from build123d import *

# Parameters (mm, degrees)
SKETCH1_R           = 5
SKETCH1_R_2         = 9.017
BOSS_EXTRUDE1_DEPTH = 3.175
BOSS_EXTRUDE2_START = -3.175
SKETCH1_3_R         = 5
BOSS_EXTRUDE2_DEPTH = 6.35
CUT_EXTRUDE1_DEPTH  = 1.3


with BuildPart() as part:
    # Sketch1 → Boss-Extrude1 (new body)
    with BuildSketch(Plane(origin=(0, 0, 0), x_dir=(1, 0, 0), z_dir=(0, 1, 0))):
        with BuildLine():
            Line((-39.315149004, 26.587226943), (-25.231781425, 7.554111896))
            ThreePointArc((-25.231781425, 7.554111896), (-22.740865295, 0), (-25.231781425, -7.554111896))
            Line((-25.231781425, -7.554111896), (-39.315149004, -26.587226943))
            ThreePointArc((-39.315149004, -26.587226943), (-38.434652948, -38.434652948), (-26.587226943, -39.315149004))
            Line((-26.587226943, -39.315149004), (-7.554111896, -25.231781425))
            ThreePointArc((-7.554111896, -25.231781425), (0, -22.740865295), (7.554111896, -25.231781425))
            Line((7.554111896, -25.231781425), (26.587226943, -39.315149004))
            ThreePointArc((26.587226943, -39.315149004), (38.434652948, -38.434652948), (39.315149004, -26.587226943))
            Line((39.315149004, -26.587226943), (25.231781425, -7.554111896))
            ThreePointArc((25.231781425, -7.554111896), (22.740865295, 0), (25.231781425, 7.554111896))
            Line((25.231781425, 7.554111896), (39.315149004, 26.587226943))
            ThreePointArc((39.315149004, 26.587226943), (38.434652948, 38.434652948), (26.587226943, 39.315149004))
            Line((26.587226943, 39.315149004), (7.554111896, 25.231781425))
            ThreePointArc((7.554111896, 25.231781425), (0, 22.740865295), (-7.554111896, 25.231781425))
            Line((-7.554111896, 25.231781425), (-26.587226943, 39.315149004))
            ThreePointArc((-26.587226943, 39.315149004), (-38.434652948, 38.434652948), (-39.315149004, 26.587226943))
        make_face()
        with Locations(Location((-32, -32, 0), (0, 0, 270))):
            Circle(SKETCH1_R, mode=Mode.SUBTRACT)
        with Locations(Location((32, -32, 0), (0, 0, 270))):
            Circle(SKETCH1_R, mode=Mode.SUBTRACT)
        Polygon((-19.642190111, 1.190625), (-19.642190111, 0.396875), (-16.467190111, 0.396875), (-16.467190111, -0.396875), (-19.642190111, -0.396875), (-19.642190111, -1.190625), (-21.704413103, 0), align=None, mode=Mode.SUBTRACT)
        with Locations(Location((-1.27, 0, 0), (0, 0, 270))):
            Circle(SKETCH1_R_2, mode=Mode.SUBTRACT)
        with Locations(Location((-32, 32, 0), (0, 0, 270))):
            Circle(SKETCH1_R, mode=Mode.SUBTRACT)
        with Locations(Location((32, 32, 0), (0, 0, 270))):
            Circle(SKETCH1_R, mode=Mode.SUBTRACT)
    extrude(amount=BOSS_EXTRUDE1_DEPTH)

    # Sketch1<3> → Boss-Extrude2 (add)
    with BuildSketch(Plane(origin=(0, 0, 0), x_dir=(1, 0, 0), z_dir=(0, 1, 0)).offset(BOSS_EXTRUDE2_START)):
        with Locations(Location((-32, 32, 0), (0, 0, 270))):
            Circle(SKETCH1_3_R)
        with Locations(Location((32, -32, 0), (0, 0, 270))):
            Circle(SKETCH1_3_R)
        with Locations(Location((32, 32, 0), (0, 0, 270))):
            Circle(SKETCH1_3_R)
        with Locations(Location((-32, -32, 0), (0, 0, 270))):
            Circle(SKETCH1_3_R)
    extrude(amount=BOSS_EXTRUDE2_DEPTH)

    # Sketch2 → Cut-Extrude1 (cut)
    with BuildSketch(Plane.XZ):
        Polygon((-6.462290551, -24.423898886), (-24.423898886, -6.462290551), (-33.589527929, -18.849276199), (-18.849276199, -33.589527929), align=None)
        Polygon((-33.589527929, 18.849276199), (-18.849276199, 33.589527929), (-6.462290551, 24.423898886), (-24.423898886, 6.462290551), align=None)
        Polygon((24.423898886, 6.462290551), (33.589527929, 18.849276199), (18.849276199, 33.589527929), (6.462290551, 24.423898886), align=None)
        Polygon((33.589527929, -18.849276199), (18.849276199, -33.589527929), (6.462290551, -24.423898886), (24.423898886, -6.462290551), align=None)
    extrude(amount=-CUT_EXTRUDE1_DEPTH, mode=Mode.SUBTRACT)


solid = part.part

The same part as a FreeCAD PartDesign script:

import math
import FreeCAD as App
import Part
import Sketcher
Q = App.Units.Quantity

doc = App.newDocument("Part")
body = doc.addObject("PartDesign::Body", "Body")

# Sketch on XZ plane
sketch1 = body.newObject("Sketcher::SketchObject", "Sketch")
sketch1.AttachmentSupport = (doc.getObject("XZ_Plane"), [""])
sketch1.MapMode = "FlatFace"
sketch1.addGeometry([
    Part.LineSegment(App.Vector(-39.315149, -26.587227, 0), App.Vector(-25.231781, -7.554112, 0)),  # 0
    Part.ArcOfCircle(Part.Circle(App.Vector(-35.440865, 0, 0), App.Vector(0, 0, 1), 12.7), math.radians(-36.499228), math.radians(36.499228)),  # 1
    Part.LineSegment(App.Vector(-25.231781, 7.554112, 0), App.Vector(-39.315149, 26.587227, 0)),  # 2
    Part.ArcOfCircle(Part.Circle(App.Vector(-32, 32, 0), App.Vector(0, 0, 1), 9.099973), math.radians(53.500772), math.radians(216.499228)),  # 3
    Part.LineSegment(App.Vector(-26.587227, 39.315149, 0), App.Vector(-7.554112, 25.231781, 0)),  # 4
    Part.ArcOfCircle(Part.Circle(App.Vector(0, 35.440865, 0), App.Vector(0, 0, 1), 12.7), math.radians(-126.499228), math.radians(-53.500772)),  # 5
    Part.LineSegment(App.Vector(7.554112, 25.231781, 0), App.Vector(26.587227, 39.315149, 0)),  # 6
    Part.ArcOfCircle(Part.Circle(App.Vector(32, 32, 0), App.Vector(0, 0, 1), 9.099973), math.radians(-36.499228), math.radians(126.499228)),  # 7
    Part.LineSegment(App.Vector(39.315149, 26.587227, 0), App.Vector(25.231781, 7.554112, 0)),  # 8
    Part.ArcOfCircle(Part.Circle(App.Vector(35.440865, 0, 0), App.Vector(0, 0, 1), 12.7), math.radians(143.500772), math.radians(216.499228)),  # 9
    Part.LineSegment(App.Vector(25.231781, -7.554112, 0), App.Vector(39.315149, -26.587227, 0)),  # 10
    Part.ArcOfCircle(Part.Circle(App.Vector(32, -32, 0), App.Vector(0, 0, 1), 9.099973), math.radians(-126.499228), math.radians(36.499228)),  # 11
    Part.LineSegment(App.Vector(26.587227, -39.315149, 0), App.Vector(7.554112, -25.231781, 0)),  # 12
    Part.ArcOfCircle(Part.Circle(App.Vector(0, -35.440865, 0), App.Vector(0, 0, 1), 12.7), math.radians(53.500772), math.radians(126.499228)),  # 13
    Part.LineSegment(App.Vector(-7.554112, -25.231781, 0), App.Vector(-26.587227, -39.315149, 0)),  # 14
    Part.ArcOfCircle(Part.Circle(App.Vector(-32, -32, 0), App.Vector(0, 0, 1), 9.099973), math.radians(143.500772), math.radians(306.499228)),  # 15
    Part.Circle(App.Vector(-32, 32, 0), App.Vector(0, 0, 1), 5),  # 16
    Part.Circle(App.Vector(32, 32, 0), App.Vector(0, 0, 1), 5),  # 17
    Part.LineSegment(App.Vector(-21.704413, 0, 0), App.Vector(-19.64219, -1.190625, 0)),  # 18
    Part.LineSegment(App.Vector(-19.64219, -1.190625, 0), App.Vector(-19.64219, -0.396875, 0)),  # 19
    Part.LineSegment(App.Vector(-19.64219, -0.396875, 0), App.Vector(-16.46719, -0.396875, 0)),  # 20
    Part.LineSegment(App.Vector(-16.46719, -0.396875, 0), App.Vector(-16.46719, 0.396875, 0)),  # 21
    Part.LineSegment(App.Vector(-16.46719, 0.396875, 0), App.Vector(-19.64219, 0.396875, 0)),  # 22
    Part.LineSegment(App.Vector(-19.64219, 0.396875, 0), App.Vector(-19.64219, 1.190625, 0)),  # 23
    Part.LineSegment(App.Vector(-19.64219, 1.190625, 0), App.Vector(-21.704413, 0, 0)),  # 24
    Part.Circle(App.Vector(-1.27, 0, 0), App.Vector(0, 0, 1), 9.017),  # 25
    Part.Circle(App.Vector(-32, -32, 0), App.Vector(0, 0, 1), 5),  # 26
    Part.Circle(App.Vector(32, -32, 0), App.Vector(0, 0, 1), 5),  # 27
], False)
sketch1.addConstraint([
    Sketcher.Constraint("Tangent", 0, 2, 1, 1),
    Sketcher.Constraint("Tangent", 1, 2, 2, 1),
    Sketcher.Constraint("Tangent", 2, 2, 3, 2),
    Sketcher.Constraint("Tangent", 3, 1, 4, 1),
    Sketcher.Constraint("Tangent", 4, 2, 5, 1),
    Sketcher.Constraint("Tangent", 5, 2, 6, 1),
    Sketcher.Constraint("Tangent", 6, 2, 7, 2),
    Sketcher.Constraint("Tangent", 7, 1, 8, 1),
    Sketcher.Constraint("Tangent", 8, 2, 9, 1),
    Sketcher.Constraint("Tangent", 9, 2, 10, 1),
    Sketcher.Constraint("Tangent", 10, 2, 11, 2),
    Sketcher.Constraint("Tangent", 11, 1, 12, 1),
    Sketcher.Constraint("Tangent", 12, 2, 13, 1),
    Sketcher.Constraint("Tangent", 13, 2, 14, 1),
    Sketcher.Constraint("Tangent", 14, 2, 15, 2),
    Sketcher.Constraint("Tangent", 15, 1, 0, 1),
    Sketcher.Constraint("Coincident", 18, 2, 19, 1),
    Sketcher.Constraint("Coincident", 19, 2, 20, 1),
    Sketcher.Constraint("Coincident", 20, 2, 21, 1),
    Sketcher.Constraint("Coincident", 21, 2, 22, 1),
    Sketcher.Constraint("Coincident", 22, 2, 23, 1),
    Sketcher.Constraint("Coincident", 23, 2, 24, 1),
    Sketcher.Constraint("Coincident", 24, 2, 18, 1),
    Sketcher.Constraint("Vertical", 19),
    Sketcher.Constraint("Horizontal", 20),
    Sketcher.Constraint("Vertical", 21),
    Sketcher.Constraint("Horizontal", 22),
    Sketcher.Constraint("Vertical", 23),
    Sketcher.Constraint("Coincident", 16, 3, 3, 3),
    Sketcher.Constraint("Coincident", 17, 3, 7, 3),
    Sketcher.Constraint("Coincident", 26, 3, 15, 3),
    Sketcher.Constraint("Coincident", 27, 3, 11, 3),
    Sketcher.Constraint("Equal", 1, 5),
    Sketcher.Constraint("Equal", 3, 7),
    Sketcher.Constraint("Equal", 5, 9),
    Sketcher.Constraint("Equal", 7, 11),
    Sketcher.Constraint("Equal", 9, 13),
    Sketcher.Constraint("Equal", 11, 15),
    Sketcher.Constraint("Equal", 16, 17),
    Sketcher.Constraint("Equal", 17, 26),
    Sketcher.Constraint("Equal", 26, 27),
    Sketcher.Constraint("Symmetric", 1, 3, 9, 3, -1, 1),
    Sketcher.Constraint("Symmetric", 3, 3, 11, 3, -1, 1),
    Sketcher.Constraint("Symmetric", 5, 3, 13, 3, -1, 1),
    Sketcher.Constraint("Symmetric", 7, 3, 15, 3, -1, 1),
    Sketcher.Constraint("Symmetric", 3, 3, 7, 3, -2),
    Sketcher.Constraint("Symmetric", 19, 2, 22, 2, -1),
    Sketcher.Constraint("PointOnObject", 1, 3, -1),
    Sketcher.Constraint("PointOnObject", 5, 3, -2),
    Sketcher.Constraint("PointOnObject", 25, 3, -1),
    Sketcher.Constraint("PointOnObject", 24, 2, -1),
    Sketcher.Constraint("Perpendicular", 0, 4),
    Sketcher.Constraint("Equal", 19, 21),
    Sketcher.Constraint("Equal", 21, 23),
    Sketcher.Constraint("Equal", 2, 4),
    Sketcher.Constraint("Radius", 1, Q("0.5 in")),
    Sketcher.Constraint("Diameter", 25, Q("0.71 in")),
    Sketcher.Constraint("Angle", 18, Q("-30 deg")),
    Sketcher.Constraint("Diameter", 16, Q("10 mm")),
    Sketcher.Constraint("DistanceX", 20, 1, 20, 2, Q("0.125 in")),
    Sketcher.Constraint("DistanceY", 19, 1, 19, 2, Q("0.03125 in")),
    Sketcher.Constraint("DistanceX", 25, 3, -1, 1, Q("0.05 in")),
    Sketcher.Constraint("Radius", 3, Q("9.099973 mm")),
    Sketcher.Constraint("DistanceX", 3, 3, -1, 1, Q("32 mm")),
    Sketcher.Constraint("Distance", 0, Q("23.677008 mm")),
    Sketcher.Constraint("DistanceX", 18, 2, -1, 1, Q("19.64219 mm")),
])
pad1 = body.newObject("PartDesign::Pad", "Pad")
pad1.Profile = sketch1
pad1.Length = Q("0.125 in")
pad1.Reversed = True

# Sketch on XZ plane
sketch2 = body.newObject("Sketcher::SketchObject", "Sketch001")
sketch2.AttachmentSupport = (doc.getObject("XZ_Plane"), [""])
sketch2.MapMode = "FlatFace"
sketch2.AttachmentOffset = App.Placement(App.Vector(0, 0, 0.125 * 25.4), App.Rotation())
sketch2.addGeometry([
    Part.Circle(App.Vector(-32, -32, 0), App.Vector(0, 0, 1), 5),
    Part.Circle(App.Vector(32, 32, 0), App.Vector(0, 0, 1), 5),
    Part.Circle(App.Vector(32, -32, 0), App.Vector(0, 0, 1), 5),
    Part.Circle(App.Vector(-32, 32, 0), App.Vector(0, 0, 1), 5),
], False)
sketch2.addConstraint([
    Sketcher.Constraint("Equal", 0, 1),
    Sketcher.Constraint("Equal", 1, 2),
    Sketcher.Constraint("Equal", 2, 3),
    Sketcher.Constraint("Symmetric", 0, 3, 1, 3, -1, 1),
    Sketcher.Constraint("Symmetric", 2, 3, 3, 3, -1, 1),
    Sketcher.Constraint("Symmetric", 0, 3, 2, 3, -2),
    Sketcher.Constraint("Diameter", 0, Q("10 mm")),
    Sketcher.Constraint("DistanceX", 0, 3, -1, 1, Q("32 mm")),
    Sketcher.Constraint("DistanceY", 0, 3, -1, 1, Q("32 mm")),
])
pad2 = body.newObject("PartDesign::Pad", "Pad001")
pad2.Profile = sketch2
pad2.Length = Q("0.25 in")
pad2.Reversed = True

# Sketch on XZ plane
sketch3 = body.newObject("Sketcher::SketchObject", "Sketch002")
sketch3.AttachmentSupport = (doc.getObject("XZ_Plane"), [""])
sketch3.MapMode = "FlatFace"
sketch3.addGeometry([
    Part.LineSegment(App.Vector(-6.462291, -24.423899, 0), App.Vector(-24.423899, -6.462291, 0)),  # 0
    Part.LineSegment(App.Vector(-24.423899, -6.462291, 0), App.Vector(-33.589528, -18.849276, 0)),  # 1
    Part.LineSegment(App.Vector(-33.589528, -18.849276, 0), App.Vector(-18.849276, -33.589528, 0)),  # 2
    Part.LineSegment(App.Vector(-18.849276, -33.589528, 0), App.Vector(-6.462291, -24.423899, 0)),  # 3
    Part.LineSegment(App.Vector(-18.849276, 33.589528, 0), App.Vector(-33.589528, 18.849276, 0)),  # 4
    Part.LineSegment(App.Vector(-33.589528, 18.849276, 0), App.Vector(-24.423899, 6.462291, 0)),  # 5
    Part.LineSegment(App.Vector(-24.423899, 6.462291, 0), App.Vector(-6.462291, 24.423899, 0)),  # 6
    Part.LineSegment(App.Vector(-6.462291, 24.423899, 0), App.Vector(-18.849276, 33.589528, 0)),  # 7
    Part.LineSegment(App.Vector(24.423899, 6.462291, 0), App.Vector(33.589528, 18.849276, 0)),  # 8
    Part.LineSegment(App.Vector(33.589528, 18.849276, 0), App.Vector(18.849276, 33.589528, 0)),  # 9
    Part.LineSegment(App.Vector(18.849276, 33.589528, 0), App.Vector(6.462291, 24.423899, 0)),  # 10
    Part.LineSegment(App.Vector(6.462291, 24.423899, 0), App.Vector(24.423899, 6.462291, 0)),  # 11
    Part.LineSegment(App.Vector(18.849276, -33.589528, 0), App.Vector(33.589528, -18.849276, 0)),  # 12
    Part.LineSegment(App.Vector(33.589528, -18.849276, 0), App.Vector(24.423899, -6.462291, 0)),  # 13
    Part.LineSegment(App.Vector(24.423899, -6.462291, 0), App.Vector(6.462291, -24.423899, 0)),  # 14
    Part.LineSegment(App.Vector(6.462291, -24.423899, 0), App.Vector(18.849276, -33.589528, 0)),  # 15
], False)
sketch3.addConstraint([
    Sketcher.Constraint("Coincident", 0, 2, 1, 1),
    Sketcher.Constraint("Coincident", 1, 2, 2, 1),
    Sketcher.Constraint("Coincident", 2, 2, 3, 1),
    Sketcher.Constraint("Coincident", 3, 2, 0, 1),
    Sketcher.Constraint("Coincident", 4, 2, 5, 1),
    Sketcher.Constraint("Coincident", 5, 2, 6, 1),
    Sketcher.Constraint("Coincident", 6, 2, 7, 1),
    Sketcher.Constraint("Coincident", 7, 2, 4, 1),
    Sketcher.Constraint("Coincident", 8, 2, 9, 1),
    Sketcher.Constraint("Coincident", 9, 2, 10, 1),
    Sketcher.Constraint("Coincident", 10, 2, 11, 1),
    Sketcher.Constraint("Coincident", 11, 2, 8, 1),
    Sketcher.Constraint("Coincident", 12, 2, 13, 1),
    Sketcher.Constraint("Coincident", 13, 2, 14, 1),
    Sketcher.Constraint("Coincident", 14, 2, 15, 1),
    Sketcher.Constraint("Coincident", 15, 2, 12, 1),
    Sketcher.Constraint("Symmetric", 1, 2, 8, 2, -1, 1),
    Sketcher.Constraint("Symmetric", 2, 2, 9, 2, -1, 1),
    Sketcher.Constraint("Symmetric", 3, 2, 10, 2, -1, 1),
    Sketcher.Constraint("Symmetric", 0, 2, 11, 2, -1, 1),
    Sketcher.Constraint("Symmetric", 4, 2, 12, 2, -1, 1),
    Sketcher.Constraint("Symmetric", 5, 2, 13, 2, -1, 1),
    Sketcher.Constraint("Symmetric", 6, 2, 14, 2, -1, 1),
    Sketcher.Constraint("Symmetric", 7, 2, 15, 2, -1, 1),
    Sketcher.Constraint("Symmetric", 4, 2, 8, 2, -2),
    Sketcher.Constraint("Symmetric", 7, 2, 9, 2, -2),
    Sketcher.Constraint("Symmetric", 6, 2, 10, 2, -2),
    Sketcher.Constraint("Symmetric", 5, 2, 11, 2, -2),
    Sketcher.Constraint("Parallel", 0, 2),
    Sketcher.Constraint("Perpendicular", 2, 4),
    Sketcher.Constraint("Perpendicular", 3, 5),
    Sketcher.Constraint("DistanceX", 0, 2, -1, 1, Q("24.423899 mm")),
    Sketcher.Constraint("DistanceY", 3, 2, -1, 1, Q("24.423899 mm")),
    Sketcher.Constraint("Distance", 0, Q("25.40155 mm")),
    Sketcher.Constraint("Distance", 1, Q("15.409288 mm")),
    Sketcher.Constraint("DistanceX", 1, 2, 0, 2, Q("9.165629 mm")),
])
pocket1 = body.newObject("PartDesign::Pocket", "Pocket")
pocket1.Profile = sketch3
pocket1.Length = 1.3

doc.recompute()
